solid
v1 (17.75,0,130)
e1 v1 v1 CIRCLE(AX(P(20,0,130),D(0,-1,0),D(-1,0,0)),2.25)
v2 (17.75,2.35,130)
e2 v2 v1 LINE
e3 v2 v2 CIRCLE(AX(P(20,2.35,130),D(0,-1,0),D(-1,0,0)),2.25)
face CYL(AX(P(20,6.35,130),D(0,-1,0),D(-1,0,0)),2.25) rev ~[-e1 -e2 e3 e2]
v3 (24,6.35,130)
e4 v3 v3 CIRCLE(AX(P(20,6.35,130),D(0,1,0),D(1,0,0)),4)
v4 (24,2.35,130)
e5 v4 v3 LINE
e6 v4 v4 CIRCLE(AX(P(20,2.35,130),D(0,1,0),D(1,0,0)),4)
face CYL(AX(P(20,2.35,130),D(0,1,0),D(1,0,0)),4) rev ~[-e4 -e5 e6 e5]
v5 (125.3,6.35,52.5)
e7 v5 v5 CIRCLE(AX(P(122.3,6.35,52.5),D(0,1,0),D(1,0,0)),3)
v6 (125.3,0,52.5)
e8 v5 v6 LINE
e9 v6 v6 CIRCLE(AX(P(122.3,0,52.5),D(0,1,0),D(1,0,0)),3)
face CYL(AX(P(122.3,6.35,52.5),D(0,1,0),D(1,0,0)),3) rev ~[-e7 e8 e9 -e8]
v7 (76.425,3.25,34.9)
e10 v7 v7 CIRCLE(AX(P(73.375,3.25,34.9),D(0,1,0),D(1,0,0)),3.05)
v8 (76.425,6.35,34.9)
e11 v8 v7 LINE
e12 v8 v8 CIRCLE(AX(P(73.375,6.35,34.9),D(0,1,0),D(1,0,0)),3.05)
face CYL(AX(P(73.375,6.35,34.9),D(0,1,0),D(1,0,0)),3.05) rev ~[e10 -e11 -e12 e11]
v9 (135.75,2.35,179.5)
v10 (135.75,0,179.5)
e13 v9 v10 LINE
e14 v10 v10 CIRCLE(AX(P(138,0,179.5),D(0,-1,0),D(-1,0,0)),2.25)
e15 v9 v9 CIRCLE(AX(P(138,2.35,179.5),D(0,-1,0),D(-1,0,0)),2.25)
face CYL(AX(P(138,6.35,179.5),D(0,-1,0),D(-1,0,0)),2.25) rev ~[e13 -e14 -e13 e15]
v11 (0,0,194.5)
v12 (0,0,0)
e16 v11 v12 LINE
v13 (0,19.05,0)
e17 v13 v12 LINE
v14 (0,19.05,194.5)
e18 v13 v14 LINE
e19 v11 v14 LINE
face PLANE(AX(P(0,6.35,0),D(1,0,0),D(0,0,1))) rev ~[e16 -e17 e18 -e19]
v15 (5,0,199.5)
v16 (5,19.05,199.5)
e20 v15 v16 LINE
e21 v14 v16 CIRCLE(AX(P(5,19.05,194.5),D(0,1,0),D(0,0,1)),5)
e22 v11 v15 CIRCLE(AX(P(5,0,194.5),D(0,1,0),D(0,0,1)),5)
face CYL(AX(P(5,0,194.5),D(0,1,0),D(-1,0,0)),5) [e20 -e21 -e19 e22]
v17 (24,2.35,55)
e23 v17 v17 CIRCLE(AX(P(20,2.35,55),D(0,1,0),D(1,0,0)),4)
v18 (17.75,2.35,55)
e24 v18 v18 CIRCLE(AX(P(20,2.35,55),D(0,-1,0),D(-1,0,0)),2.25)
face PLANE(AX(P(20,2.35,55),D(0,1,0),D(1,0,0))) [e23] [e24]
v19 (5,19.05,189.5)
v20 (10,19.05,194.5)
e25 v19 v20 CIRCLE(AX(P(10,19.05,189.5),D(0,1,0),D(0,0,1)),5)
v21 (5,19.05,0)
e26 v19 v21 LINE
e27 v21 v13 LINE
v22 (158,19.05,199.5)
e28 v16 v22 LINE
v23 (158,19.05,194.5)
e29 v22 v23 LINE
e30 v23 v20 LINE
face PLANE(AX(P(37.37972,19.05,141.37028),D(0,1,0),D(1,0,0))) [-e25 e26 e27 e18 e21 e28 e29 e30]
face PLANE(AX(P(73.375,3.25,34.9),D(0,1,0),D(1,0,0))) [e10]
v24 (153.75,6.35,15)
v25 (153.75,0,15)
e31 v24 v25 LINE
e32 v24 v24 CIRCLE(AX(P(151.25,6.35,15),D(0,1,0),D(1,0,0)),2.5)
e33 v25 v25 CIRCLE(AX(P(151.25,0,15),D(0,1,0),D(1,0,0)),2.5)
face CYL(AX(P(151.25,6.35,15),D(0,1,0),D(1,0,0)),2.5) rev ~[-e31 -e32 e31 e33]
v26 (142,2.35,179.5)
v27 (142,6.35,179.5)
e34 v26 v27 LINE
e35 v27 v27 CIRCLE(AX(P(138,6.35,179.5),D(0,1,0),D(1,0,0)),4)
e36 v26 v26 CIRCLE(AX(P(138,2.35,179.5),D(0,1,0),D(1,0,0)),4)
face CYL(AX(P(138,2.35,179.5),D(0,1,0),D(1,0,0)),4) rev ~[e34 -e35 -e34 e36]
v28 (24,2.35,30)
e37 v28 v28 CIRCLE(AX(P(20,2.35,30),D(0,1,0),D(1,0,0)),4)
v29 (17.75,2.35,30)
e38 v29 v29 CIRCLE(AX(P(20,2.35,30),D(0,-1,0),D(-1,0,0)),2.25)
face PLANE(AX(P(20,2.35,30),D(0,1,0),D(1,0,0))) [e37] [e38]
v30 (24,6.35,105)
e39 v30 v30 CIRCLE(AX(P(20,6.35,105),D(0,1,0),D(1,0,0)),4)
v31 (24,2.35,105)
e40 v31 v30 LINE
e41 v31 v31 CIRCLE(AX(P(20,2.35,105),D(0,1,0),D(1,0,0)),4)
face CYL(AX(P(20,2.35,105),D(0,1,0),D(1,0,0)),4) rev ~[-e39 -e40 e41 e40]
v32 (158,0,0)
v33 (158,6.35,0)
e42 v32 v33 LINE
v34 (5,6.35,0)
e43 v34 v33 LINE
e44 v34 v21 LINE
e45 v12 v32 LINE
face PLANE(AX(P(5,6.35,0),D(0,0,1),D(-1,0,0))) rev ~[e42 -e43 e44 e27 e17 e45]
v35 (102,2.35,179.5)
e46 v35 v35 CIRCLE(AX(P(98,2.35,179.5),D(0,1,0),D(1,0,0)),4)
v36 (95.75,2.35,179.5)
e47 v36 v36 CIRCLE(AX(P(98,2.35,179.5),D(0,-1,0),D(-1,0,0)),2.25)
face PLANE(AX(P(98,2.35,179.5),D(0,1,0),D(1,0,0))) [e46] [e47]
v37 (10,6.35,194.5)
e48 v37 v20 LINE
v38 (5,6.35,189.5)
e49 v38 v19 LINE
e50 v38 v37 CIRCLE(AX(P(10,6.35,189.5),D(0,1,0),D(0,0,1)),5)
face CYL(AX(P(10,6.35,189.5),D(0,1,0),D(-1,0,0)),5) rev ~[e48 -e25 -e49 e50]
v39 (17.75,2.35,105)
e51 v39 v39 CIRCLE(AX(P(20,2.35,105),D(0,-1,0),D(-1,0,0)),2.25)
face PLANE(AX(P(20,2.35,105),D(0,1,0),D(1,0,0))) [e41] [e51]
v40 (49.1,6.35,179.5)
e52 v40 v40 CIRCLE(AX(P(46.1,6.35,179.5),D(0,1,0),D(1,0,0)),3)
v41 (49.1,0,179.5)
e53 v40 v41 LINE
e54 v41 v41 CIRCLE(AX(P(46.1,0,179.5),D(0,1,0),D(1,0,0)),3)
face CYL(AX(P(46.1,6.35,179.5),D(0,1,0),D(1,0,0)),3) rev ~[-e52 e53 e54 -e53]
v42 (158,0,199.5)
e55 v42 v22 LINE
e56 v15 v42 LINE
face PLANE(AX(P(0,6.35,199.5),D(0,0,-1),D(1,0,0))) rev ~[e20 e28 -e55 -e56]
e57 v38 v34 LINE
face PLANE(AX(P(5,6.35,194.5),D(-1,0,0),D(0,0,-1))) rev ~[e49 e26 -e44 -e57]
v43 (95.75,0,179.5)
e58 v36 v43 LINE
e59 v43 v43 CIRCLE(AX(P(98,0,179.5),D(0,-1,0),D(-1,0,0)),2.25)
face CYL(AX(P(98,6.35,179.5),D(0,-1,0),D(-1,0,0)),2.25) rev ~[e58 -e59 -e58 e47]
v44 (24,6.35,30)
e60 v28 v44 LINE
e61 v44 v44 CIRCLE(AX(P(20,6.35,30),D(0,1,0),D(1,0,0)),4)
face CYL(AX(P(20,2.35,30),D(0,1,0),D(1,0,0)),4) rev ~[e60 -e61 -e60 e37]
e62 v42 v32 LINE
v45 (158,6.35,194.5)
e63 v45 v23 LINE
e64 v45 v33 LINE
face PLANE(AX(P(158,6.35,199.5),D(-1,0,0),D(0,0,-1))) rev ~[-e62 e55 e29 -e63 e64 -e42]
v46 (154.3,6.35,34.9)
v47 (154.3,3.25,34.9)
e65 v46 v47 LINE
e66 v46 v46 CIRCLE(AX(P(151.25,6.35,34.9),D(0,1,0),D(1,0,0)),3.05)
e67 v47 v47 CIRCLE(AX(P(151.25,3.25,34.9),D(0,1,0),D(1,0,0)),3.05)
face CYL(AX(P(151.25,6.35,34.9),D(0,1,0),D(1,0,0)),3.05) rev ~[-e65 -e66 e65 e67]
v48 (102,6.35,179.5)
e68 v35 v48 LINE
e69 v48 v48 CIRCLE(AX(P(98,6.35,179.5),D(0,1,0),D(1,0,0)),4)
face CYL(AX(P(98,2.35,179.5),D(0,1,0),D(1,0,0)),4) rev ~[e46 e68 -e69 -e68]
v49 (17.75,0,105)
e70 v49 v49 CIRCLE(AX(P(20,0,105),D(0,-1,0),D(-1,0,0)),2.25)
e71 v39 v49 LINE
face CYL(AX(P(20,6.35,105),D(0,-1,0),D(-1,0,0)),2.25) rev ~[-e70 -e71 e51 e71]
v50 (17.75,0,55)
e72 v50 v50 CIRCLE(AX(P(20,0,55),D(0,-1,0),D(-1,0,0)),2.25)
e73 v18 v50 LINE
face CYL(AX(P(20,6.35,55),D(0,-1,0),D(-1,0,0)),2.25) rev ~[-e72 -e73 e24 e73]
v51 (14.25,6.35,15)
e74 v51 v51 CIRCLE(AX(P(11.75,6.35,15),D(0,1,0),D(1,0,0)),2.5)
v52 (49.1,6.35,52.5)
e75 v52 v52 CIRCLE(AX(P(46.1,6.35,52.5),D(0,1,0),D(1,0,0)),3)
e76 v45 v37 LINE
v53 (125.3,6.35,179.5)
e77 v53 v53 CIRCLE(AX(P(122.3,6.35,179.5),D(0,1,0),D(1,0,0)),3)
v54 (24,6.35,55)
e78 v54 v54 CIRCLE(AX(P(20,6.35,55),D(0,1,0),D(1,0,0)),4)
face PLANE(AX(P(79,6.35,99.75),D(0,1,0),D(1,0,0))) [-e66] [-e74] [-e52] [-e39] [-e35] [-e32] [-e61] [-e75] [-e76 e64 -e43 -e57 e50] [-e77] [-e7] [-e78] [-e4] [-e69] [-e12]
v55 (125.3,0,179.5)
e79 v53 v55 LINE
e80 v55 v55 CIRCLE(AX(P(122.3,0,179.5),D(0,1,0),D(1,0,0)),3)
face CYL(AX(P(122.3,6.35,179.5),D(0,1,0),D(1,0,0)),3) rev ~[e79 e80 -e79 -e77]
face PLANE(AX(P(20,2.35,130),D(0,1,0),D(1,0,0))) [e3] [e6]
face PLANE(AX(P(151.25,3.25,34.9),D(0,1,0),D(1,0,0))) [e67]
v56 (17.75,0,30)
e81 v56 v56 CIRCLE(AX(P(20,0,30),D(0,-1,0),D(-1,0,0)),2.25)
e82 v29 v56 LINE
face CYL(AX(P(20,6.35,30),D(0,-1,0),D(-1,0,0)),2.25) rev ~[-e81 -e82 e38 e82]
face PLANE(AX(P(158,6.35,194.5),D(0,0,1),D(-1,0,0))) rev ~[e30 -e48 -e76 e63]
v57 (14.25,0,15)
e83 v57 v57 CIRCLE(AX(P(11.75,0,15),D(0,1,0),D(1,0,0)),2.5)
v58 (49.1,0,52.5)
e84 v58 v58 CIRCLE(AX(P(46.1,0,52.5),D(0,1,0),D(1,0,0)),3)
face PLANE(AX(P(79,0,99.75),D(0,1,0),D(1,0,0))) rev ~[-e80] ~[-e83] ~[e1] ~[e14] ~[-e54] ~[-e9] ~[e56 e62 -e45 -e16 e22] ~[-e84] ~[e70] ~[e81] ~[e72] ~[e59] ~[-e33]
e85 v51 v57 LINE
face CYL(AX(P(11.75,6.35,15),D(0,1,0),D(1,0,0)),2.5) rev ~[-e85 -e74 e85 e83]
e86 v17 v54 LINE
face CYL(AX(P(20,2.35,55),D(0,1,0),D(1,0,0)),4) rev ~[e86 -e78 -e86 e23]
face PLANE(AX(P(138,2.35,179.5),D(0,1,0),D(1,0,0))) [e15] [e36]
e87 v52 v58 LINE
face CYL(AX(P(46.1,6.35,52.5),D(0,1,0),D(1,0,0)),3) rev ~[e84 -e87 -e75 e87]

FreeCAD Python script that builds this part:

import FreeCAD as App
import Part
import Sketcher


def edges_at(feature, points):
    """Names of the edges that pass closest to the given points."""
    edges = feature.Shape.Edges
    near = lambda p: min(range(len(edges)), key=lambda i: edges[i].distToShape(Part.Vertex(*p))[0])
    return sorted({f"Edge{near(p) + 1}" for p in points})


def add_polygon(sketch, points):
    """Adds a closed chain of lines whose ends are joined by coincident constraints."""
    first, n = sketch.GeometryCount, len(points)
    for a, b in zip(points, points[1:] + points[:1]):
        sketch.addGeometry(Part.LineSegment(App.Vector(*a, 0), App.Vector(*b, 0)), False)
    for i in range(n):
        sketch.addConstraint(Sketcher.Constraint("Coincident", first + i, 2, first + (i + 1) % n, 1))

doc = App.newDocument("Part")
body = doc.addObject("PartDesign::Body", "Body")

sketch1 = doc.addObject("Sketcher::SketchObject", "Sketch")
body.addObject(sketch1)
sketch1.AttachmentSupport = (doc.XZ_Plane, [""])
sketch1.MapMode = "FlatFace"
add_polygon(sketch1, [(0, 0), (0, 199.5), (158, 199.5), (158, 0)])
sketch1.addConstraint(Sketcher.Constraint("Vertical", 0))
sketch1.addConstraint(Sketcher.Constraint("Horizontal", 1))
sketch1.addConstraint(Sketcher.Constraint("Vertical", 2))
sketch1.addConstraint(Sketcher.Constraint("Horizontal", 3))
sketch1.addConstraint(Sketcher.Constraint("Coincident", 3, 2, -1, 1))
sketch1.addConstraint(Sketcher.Constraint("DistanceX", 1, 1, 1, 2, 158.0))
sketch1.addConstraint(Sketcher.Constraint("DistanceY", 0, 1, 0, 2, 199.5))
pad1 = doc.addObject("PartDesign::Pad", "Pad")
body.addObject(pad1)
pad1.Profile = sketch1
pad1.Length = 6.35
pad1.Reversed = True

sketch2 = doc.addObject("Sketcher::SketchObject", "Sketch001")
body.addObject(sketch2)
sketch2.AttachmentSupport = (doc.XZ_Plane, [""])
sketch2.MapMode = "FlatFace"
sketch2.AttachmentOffset = App.Placement(App.Vector(0, 0, -6.35), App.Rotation())
add_polygon(sketch2, [(0, 0), (0, 199.5), (158, 199.5), (158, 194.5), (5, 194.5), (5, 0)])
sketch2.addConstraint(Sketcher.Constraint("Vertical", 0))
sketch2.addConstraint(Sketcher.Constraint("Horizontal", 1))
sketch2.addConstraint(Sketcher.Constraint("Vertical", 2))
sketch2.addConstraint(Sketcher.Constraint("Horizontal", 3))
sketch2.addConstraint(Sketcher.Constraint("Vertical", 4))
sketch2.addConstraint(Sketcher.Constraint("Horizontal", 5))
sketch2.addConstraint(Sketcher.Constraint("Coincident", 5, 2, -1, 1))
sketch2.addConstraint(Sketcher.Constraint("Equal", 5, 2))
sketch2.addConstraint(Sketcher.Constraint("DistanceX", 1, 1, 1, 2, 158.0))
sketch2.addConstraint(Sketcher.Constraint("DistanceX", 3, 2, 3, 1, 153.0))
sketch2.addConstraint(Sketcher.Constraint("DistanceY", 0, 1, 0, 2, 199.5))
pad2 = doc.addObject("PartDesign::Pad", "Pad001")
body.addObject(pad2)
pad2.Profile = sketch2
pad2.Length = 12.7
pad2.Reversed = True

sketch3 = doc.addObject("Sketcher::SketchObject", "Sketch002")
body.addObject(sketch3)
sketch3.AttachmentSupport = (doc.XZ_Plane, [""])
sketch3.MapMode = "FlatFace"
sketch3.AttachmentOffset = App.Placement(App.Vector(0, 0, -6.35), App.Rotation())
sketch3.addGeometry(Part.Circle(App.Vector(20, 55, 0), App.Vector(0, 0, 1), 2.25), False)
sketch3.addGeometry(Part.Circle(App.Vector(98, 179.5, 0), App.Vector(0, 0, 1), 2.25), False)
sketch3.addGeometry(Part.Circle(App.Vector(138, 179.5, 0), App.Vector(0, 0, 1), 2.25), False)
sketch3.addGeometry(Part.Circle(App.Vector(20, 130, 0), App.Vector(0, 0, 1), 2.25), False)
sketch3.addGeometry(Part.Circle(App.Vector(20, 105, 0), App.Vector(0, 0, 1), 2.25), False)
sketch3.addGeometry(Part.Circle(App.Vector(20, 30, 0), App.Vector(0, 0, 1), 2.25), False)
sketch3.addConstraint(Sketcher.Constraint("Equal", 0, 1))
sketch3.addConstraint(Sketcher.Constraint("Equal", 1, 2))
sketch3.addConstraint(Sketcher.Constraint("Equal", 2, 3))
sketch3.addConstraint(Sketcher.Constraint("Equal", 3, 4))
sketch3.addConstraint(Sketcher.Constraint("Equal", 4, 5))
sketch3.addConstraint(Sketcher.Constraint("Horizontal", 1, 3, 2, 3))
sketch3.addConstraint(Sketcher.Constraint("Vertical", 0, 3, 3, 3))
sketch3.addConstraint(Sketcher.Constraint("Vertical", 3, 3, 4, 3))
sketch3.addConstraint(Sketcher.Constraint("Vertical", 4, 3, 5, 3))
sketch3.addConstraint(Sketcher.Constraint("Diameter", 0, 4.5))
sketch3.addConstraint(Sketcher.Constraint("DistanceX", -1, 1, 0, 3, 20.0))
sketch3.addConstraint(Sketcher.Constraint("DistanceY", -1, 1, 0, 3, 55.0))
sketch3.addConstraint(Sketcher.Constraint("DistanceX", -1, 1, 1, 3, 98.0))
sketch3.addConstraint(Sketcher.Constraint("DistanceX", -1, 1, 2, 3, 138.0))
sketch3.addConstraint(Sketcher.Constraint("DistanceY", -1, 1, 3, 3, 130.0))
sketch3.addConstraint(Sketcher.Constraint("DistanceY", -1, 1, 4, 3, 105.0))
sketch3.addConstraint(Sketcher.Constraint("DistanceY", -1, 1, 5, 3, 30.0))
sketch3.addConstraint(Sketcher.Constraint("DistanceY", -1, 1, 1, 3, 179.5))
doc.recompute()
hole = doc.addObject("PartDesign::Hole", "Hole")
body.addObject(hole)
hole.Profile = sketch3
hole.ThreadType = "None"
hole.Diameter = 4.5
hole.DepthType = "Dimension"
hole.Depth = 6.35
hole.DrillPoint = "Flat"
hole.HoleCutType = "Counterbore"
hole.HoleCutDiameter = 8
hole.HoleCutDepth = 4
hole.Reversed = True
doc.recompute()

fillet = doc.addObject("PartDesign::Fillet", "Fillet")
body.addObject(fillet)
fillet.Base = (hole, edges_at(hole, [(5, 12.7, 194.5), (0, 9.525, 199.5)]))
fillet.Radius = 5

sketch4 = doc.addObject("Sketcher::SketchObject", "Sketch003")
body.addObject(sketch4)
sketch4.AttachmentSupport = (doc.XZ_Plane, [""])
sketch4.MapMode = "FlatFace"
sketch4.AttachmentOffset = App.Placement(App.Vector(0, 0, -6.35), App.Rotation())
sketch4.addGeometry(Part.Circle(App.Vector(46.1, 52.5, 0), App.Vector(0, 0, 1), 3), False)
sketch4.addGeometry(Part.Circle(App.Vector(122.3, 52.5, 0), App.Vector(0, 0, 1), 3), False)
sketch4.addGeometry(Part.Circle(App.Vector(122.3, 179.5, 0), App.Vector(0, 0, 1), 3), False)
sketch4.addGeometry(Part.Circle(App.Vector(46.1, 179.5, 0), App.Vector(0, 0, 1), 3), False)
sketch4.addConstraint(Sketcher.Constraint("Equal", 0, 1))
sketch4.addConstraint(Sketcher.Constraint("Equal", 1, 2))
sketch4.addConstraint(Sketcher.Constraint("Equal", 2, 3))
sketch4.addConstraint(Sketcher.Constraint("Horizontal", 0, 3, 1, 3))
sketch4.addConstraint(Sketcher.Constraint("Horizontal", 2, 3, 3, 3))
sketch4.addConstraint(Sketcher.Constraint("Vertical", 1, 3, 2, 3))
sketch4.addConstraint(Sketcher.Constraint("Vertical", 0, 3, 3, 3))
sketch4.addConstraint(Sketcher.Constraint("Diameter", 0, 6.0))
sketch4.addConstraint(Sketcher.Constraint("DistanceY", 1, 3, 2, 3, 127.0))
sketch4.addConstraint(Sketcher.Constraint("DistanceX", -1, 1, 0, 3, 46.1))
sketch4.addConstraint(Sketcher.Constraint("DistanceY", -1, 1, 0, 3, 52.5))
sketch4.addConstraint(Sketcher.Constraint("DistanceX", -1, 1, 1, 3, 122.3))
pocket1 = doc.addObject("PartDesign::Pocket", "Pocket")
body.addObject(pocket1)
pocket1.Profile = sketch4
pocket1.Type = "ThroughAll"
pocket1.Reversed = True

sketch5 = doc.addObject("Sketcher::SketchObject", "Sketch004")
body.addObject(sketch5)
sketch5.AttachmentSupport = (doc.XZ_Plane, [""])
sketch5.MapMode = "FlatFace"
sketch5.AttachmentOffset = App.Placement(App.Vector(0, 0, -6.35), App.Rotation())
sketch5.addGeometry(Part.Circle(App.Vector(11.75, 15, 0), App.Vector(0, 0, 1), 2.5), False)
sketch5.addGeometry(Part.Circle(App.Vector(151.25, 15, 0), App.Vector(0, 0, 1), 2.5), False)
sketch5.addConstraint(Sketcher.Constraint("Equal", 0, 1))
sketch5.addConstraint(Sketcher.Constraint("Horizontal", 0, 3, 1, 3))
sketch5.addConstraint(Sketcher.Constraint("Diameter", 0, 5.0))
sketch5.addConstraint(Sketcher.Constraint("DistanceY", -1, 1, 0, 3, 15.0))
sketch5.addConstraint(Sketcher.Constraint("DistanceX", 0, 3, 1, 3, 139.5))
sketch5.addConstraint(Sketcher.Constraint("DistanceX", -1, 1, 0, 3, 11.75))
pocket2 = doc.addObject("PartDesign::Pocket", "Pocket001")
body.addObject(pocket2)
pocket2.Profile = sketch5
pocket2.Type = "ThroughAll"
pocket2.Reversed = True

sketch6 = doc.addObject("Sketcher::SketchObject", "Sketch005")
body.addObject(sketch6)
sketch6.AttachmentSupport = (doc.XZ_Plane, [""])
sketch6.MapMode = "FlatFace"
sketch6.AttachmentOffset = App.Placement(App.Vector(0, 0, -6.35), App.Rotation())
sketch6.addGeometry(Part.Circle(App.Vector(151.25, 34.9, 0), App.Vector(0, 0, 1), 3.05), False)
sketch6.addGeometry(Part.Circle(App.Vector(73.375, 34.9, 0), App.Vector(0, 0, 1), 3.05), False)
sketch6.addConstraint(Sketcher.Constraint("Equal", 0, 1))
sketch6.addConstraint(Sketcher.Constraint("Horizontal", 0, 3, 1, 3))
sketch6.addConstraint(Sketcher.Constraint("Diameter", 0, 6.1))
sketch6.addConstraint(Sketcher.Constraint("DistanceY", -1, 1, 0, 3, 34.9))
sketch6.addConstraint(Sketcher.Constraint("DistanceX", -1, 1, 0, 3, 151.25))
sketch6.addConstraint(Sketcher.Constraint("DistanceX", -1, 1, 1, 3, 73.375))
pocket3 = doc.addObject("PartDesign::Pocket", "Pocket002")
body.addObject(pocket3)
pocket3.Profile = sketch6
pocket3.Length = 3.1
pocket3.Reversed = True

doc.recompute()
